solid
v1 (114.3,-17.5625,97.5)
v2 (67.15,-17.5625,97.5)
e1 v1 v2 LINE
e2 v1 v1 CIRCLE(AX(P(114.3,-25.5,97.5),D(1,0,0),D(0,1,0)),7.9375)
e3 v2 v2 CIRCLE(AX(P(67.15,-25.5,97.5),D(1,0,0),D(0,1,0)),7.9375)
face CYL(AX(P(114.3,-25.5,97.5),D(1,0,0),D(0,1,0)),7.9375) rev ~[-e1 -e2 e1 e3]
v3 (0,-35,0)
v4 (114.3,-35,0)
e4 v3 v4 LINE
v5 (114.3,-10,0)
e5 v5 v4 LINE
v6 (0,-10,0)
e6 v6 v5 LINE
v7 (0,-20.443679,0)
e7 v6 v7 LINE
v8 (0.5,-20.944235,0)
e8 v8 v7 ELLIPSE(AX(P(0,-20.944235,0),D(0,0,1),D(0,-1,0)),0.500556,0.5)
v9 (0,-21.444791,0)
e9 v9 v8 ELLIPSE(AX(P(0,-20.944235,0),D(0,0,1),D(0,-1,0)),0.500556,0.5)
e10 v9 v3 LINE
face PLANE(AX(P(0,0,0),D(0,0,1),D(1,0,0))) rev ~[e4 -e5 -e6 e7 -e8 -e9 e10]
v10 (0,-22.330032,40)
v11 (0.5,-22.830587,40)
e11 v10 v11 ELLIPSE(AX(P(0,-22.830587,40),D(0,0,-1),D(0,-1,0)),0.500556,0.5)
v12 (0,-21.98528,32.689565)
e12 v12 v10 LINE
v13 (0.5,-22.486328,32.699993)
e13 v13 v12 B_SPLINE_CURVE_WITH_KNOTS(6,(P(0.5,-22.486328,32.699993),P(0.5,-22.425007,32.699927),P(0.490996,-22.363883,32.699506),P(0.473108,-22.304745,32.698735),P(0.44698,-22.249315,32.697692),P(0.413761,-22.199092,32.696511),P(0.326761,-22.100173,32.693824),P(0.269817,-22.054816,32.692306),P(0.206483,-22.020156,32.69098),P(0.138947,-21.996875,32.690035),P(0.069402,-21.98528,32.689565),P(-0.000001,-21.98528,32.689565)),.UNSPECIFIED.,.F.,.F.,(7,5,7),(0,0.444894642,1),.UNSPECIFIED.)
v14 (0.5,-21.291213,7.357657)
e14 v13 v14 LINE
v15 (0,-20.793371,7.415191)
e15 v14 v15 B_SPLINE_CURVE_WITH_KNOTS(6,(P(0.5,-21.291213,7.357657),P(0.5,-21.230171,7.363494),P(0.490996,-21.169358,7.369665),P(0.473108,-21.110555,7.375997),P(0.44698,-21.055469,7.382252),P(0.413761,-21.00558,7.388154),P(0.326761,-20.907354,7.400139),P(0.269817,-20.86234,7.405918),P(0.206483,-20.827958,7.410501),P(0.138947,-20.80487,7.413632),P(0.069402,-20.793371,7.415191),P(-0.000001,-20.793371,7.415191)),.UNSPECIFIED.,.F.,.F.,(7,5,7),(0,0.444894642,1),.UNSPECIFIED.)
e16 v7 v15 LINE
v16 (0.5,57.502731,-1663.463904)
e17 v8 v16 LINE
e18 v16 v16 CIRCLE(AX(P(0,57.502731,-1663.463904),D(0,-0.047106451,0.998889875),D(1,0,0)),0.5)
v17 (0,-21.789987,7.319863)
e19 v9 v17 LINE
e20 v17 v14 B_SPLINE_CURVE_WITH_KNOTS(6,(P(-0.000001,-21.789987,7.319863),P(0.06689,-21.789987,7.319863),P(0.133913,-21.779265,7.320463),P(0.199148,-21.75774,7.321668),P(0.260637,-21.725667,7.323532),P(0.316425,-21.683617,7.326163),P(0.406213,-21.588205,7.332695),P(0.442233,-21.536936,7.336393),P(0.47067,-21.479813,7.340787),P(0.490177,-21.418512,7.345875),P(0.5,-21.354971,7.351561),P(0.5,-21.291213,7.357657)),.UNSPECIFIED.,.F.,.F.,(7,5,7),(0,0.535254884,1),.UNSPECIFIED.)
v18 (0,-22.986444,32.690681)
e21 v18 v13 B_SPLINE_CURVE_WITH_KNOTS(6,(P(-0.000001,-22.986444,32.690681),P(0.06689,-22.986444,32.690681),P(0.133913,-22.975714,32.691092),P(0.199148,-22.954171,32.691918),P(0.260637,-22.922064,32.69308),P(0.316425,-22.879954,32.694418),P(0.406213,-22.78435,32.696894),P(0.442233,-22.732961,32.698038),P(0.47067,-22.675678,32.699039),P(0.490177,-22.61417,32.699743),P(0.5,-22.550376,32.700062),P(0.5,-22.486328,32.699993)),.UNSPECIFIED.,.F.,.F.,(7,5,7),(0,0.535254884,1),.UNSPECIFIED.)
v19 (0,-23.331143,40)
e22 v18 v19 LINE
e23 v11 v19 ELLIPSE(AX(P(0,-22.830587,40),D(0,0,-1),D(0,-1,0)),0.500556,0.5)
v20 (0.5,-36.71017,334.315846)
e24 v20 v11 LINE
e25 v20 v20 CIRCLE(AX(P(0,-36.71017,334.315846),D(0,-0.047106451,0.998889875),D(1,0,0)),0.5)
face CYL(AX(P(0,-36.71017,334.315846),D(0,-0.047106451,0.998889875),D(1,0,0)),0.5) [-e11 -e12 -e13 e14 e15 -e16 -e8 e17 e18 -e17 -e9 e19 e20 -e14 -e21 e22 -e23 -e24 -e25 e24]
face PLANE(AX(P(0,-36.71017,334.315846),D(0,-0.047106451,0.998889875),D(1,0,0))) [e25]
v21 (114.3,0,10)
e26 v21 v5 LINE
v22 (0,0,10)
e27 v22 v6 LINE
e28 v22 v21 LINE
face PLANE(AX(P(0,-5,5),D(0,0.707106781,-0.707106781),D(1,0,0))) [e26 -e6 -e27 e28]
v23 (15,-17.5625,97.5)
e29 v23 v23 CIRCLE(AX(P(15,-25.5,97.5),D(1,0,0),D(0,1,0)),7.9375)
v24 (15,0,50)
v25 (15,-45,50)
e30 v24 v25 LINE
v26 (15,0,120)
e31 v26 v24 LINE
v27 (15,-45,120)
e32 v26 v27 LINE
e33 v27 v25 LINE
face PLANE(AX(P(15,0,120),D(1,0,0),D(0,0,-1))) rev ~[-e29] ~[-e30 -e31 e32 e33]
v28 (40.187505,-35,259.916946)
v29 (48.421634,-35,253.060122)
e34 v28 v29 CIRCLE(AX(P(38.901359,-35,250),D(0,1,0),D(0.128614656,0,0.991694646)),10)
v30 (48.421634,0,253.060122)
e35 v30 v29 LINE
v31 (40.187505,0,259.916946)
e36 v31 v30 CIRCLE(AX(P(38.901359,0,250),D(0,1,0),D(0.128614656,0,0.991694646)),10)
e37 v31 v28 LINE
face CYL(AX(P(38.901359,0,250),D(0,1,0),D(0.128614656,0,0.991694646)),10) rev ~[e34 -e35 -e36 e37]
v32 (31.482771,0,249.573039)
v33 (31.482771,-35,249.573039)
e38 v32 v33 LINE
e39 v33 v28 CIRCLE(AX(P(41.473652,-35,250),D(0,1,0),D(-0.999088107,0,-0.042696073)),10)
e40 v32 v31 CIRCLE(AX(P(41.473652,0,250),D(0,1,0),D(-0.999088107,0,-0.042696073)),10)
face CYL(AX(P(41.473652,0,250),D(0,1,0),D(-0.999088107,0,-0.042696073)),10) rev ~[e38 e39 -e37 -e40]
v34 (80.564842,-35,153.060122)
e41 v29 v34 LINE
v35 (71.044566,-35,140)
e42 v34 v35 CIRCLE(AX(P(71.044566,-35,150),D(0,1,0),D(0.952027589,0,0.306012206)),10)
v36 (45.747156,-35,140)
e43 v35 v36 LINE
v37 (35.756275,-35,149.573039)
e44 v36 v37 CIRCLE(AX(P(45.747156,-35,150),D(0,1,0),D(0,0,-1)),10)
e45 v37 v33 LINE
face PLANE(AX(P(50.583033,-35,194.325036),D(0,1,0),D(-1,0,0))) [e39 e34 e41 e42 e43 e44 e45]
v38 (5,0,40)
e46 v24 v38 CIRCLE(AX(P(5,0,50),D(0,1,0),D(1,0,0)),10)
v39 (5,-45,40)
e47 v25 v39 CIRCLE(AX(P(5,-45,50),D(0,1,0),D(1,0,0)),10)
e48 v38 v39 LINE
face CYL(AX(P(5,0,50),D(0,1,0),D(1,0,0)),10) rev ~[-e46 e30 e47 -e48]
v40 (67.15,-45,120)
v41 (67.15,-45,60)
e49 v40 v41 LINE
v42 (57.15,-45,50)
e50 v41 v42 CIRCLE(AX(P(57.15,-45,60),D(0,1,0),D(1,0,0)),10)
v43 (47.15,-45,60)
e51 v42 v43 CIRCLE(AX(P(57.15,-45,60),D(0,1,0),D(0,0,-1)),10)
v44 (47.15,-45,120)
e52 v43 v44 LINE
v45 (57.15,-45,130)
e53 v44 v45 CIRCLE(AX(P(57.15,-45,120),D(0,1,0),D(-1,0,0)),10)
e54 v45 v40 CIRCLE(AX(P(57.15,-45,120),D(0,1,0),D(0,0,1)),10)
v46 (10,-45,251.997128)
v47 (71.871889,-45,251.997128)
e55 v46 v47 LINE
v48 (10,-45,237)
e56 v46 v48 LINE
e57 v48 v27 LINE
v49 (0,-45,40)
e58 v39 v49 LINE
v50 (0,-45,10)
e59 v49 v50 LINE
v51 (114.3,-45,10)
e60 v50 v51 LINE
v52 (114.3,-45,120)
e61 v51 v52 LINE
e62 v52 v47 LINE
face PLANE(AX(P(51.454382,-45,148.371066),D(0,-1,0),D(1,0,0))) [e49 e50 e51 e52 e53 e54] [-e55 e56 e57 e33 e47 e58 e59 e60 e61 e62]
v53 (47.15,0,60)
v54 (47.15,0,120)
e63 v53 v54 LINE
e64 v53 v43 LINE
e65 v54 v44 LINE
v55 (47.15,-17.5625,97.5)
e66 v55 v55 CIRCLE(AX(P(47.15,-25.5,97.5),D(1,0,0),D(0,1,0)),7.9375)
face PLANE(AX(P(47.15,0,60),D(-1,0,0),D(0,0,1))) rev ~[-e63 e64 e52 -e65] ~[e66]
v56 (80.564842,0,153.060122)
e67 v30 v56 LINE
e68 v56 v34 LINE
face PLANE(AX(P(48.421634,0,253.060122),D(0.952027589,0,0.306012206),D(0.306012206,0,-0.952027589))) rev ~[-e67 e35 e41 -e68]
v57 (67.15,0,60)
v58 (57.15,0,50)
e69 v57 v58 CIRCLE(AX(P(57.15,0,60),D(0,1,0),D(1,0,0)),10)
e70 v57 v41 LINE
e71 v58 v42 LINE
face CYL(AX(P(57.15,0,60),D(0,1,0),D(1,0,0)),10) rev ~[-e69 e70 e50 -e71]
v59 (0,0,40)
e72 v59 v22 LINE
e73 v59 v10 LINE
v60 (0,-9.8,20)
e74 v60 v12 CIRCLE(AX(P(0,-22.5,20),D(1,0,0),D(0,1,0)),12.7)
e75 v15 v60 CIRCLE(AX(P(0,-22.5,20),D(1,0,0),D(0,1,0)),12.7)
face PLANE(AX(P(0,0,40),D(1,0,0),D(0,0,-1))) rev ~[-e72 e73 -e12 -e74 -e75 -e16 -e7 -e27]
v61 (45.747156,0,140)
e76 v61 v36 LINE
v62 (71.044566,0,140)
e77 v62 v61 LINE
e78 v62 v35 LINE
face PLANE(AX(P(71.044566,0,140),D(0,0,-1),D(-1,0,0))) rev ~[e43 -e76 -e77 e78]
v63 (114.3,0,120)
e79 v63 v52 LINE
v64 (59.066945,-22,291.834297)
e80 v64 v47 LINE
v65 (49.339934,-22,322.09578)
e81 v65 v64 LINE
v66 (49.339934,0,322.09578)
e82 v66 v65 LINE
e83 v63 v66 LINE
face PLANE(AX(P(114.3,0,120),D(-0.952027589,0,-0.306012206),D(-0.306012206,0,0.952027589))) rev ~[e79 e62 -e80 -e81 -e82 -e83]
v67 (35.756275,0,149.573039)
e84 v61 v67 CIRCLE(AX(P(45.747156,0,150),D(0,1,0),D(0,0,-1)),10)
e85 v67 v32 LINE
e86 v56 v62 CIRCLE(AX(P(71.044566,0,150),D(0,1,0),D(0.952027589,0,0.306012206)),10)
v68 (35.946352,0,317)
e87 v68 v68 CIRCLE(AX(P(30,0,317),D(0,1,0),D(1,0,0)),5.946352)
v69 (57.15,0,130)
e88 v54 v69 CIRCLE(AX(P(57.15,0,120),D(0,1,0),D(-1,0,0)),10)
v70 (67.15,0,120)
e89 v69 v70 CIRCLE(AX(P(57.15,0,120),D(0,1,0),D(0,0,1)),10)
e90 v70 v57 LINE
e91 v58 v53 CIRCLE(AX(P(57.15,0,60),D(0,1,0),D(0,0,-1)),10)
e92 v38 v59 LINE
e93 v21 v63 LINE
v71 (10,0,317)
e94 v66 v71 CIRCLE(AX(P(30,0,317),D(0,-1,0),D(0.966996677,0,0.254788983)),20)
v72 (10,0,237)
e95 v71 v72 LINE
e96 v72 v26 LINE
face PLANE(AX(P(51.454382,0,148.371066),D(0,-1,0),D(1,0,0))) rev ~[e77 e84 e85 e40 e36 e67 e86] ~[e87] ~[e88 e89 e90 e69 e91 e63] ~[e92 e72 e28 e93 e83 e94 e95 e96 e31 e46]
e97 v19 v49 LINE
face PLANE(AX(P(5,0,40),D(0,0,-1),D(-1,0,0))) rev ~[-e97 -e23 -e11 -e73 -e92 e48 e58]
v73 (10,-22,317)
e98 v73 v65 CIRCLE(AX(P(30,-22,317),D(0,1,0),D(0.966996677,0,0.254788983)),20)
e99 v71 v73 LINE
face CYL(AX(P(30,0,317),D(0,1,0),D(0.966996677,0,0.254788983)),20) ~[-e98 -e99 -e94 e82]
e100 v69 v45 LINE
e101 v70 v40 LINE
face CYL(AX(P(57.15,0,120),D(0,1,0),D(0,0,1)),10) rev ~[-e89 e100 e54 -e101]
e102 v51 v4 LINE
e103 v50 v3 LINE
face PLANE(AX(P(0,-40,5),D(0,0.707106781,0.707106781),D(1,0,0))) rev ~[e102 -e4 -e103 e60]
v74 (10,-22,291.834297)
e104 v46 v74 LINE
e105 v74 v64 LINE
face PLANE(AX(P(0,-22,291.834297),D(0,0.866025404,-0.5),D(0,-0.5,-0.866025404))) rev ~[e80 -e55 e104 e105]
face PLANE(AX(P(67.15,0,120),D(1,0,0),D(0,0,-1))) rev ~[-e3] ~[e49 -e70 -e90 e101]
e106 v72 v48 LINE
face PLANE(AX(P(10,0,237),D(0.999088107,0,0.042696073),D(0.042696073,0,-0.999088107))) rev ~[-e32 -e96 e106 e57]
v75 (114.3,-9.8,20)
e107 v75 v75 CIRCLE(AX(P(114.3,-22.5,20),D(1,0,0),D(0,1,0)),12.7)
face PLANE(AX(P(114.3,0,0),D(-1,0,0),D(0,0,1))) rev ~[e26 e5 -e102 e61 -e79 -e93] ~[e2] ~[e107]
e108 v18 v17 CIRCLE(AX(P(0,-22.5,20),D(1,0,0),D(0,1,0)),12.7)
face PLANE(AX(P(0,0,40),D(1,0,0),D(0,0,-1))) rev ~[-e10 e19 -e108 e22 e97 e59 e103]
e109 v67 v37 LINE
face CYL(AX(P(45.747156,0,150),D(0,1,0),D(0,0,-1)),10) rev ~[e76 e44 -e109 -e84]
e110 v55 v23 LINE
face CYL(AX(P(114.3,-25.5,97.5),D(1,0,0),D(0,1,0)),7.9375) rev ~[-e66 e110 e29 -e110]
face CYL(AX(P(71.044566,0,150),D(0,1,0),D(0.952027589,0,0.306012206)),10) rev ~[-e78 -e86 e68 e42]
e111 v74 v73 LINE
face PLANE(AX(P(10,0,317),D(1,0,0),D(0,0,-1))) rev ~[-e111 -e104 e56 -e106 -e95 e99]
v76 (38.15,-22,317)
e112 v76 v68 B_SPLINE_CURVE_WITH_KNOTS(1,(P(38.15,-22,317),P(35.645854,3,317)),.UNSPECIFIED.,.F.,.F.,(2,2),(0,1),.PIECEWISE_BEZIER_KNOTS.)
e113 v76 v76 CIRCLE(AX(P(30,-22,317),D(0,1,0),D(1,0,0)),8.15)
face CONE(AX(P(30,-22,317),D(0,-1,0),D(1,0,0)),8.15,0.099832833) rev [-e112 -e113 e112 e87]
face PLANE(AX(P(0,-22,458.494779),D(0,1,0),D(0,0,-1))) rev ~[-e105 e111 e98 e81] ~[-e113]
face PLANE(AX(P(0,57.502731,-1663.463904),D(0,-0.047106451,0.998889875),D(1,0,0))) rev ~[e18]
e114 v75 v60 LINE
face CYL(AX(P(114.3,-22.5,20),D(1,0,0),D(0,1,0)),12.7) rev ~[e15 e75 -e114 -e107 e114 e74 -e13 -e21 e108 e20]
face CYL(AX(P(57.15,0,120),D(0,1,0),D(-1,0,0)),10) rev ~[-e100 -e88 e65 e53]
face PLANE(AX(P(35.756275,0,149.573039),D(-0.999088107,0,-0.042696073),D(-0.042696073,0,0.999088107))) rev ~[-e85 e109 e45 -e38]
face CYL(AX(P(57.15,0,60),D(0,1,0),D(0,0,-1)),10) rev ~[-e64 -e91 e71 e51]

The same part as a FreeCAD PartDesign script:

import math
import FreeCAD as App
import Part
import Sketcher
from FreeCAD import Vector
Q = App.Units.Quantity


def edges_at(feature, points):
    """Names of the edges that pass closest to the given points."""
    edges = feature.Shape.Edges
    near = lambda p: min(range(len(edges)), key=lambda i: edges[i].distToShape(Part.Vertex(*p))[0])
    return sorted({f"Edge{near(p) + 1}" for p in points})


def add_polygon(sketch, points):
    """Adds a closed chain of lines whose ends are joined by coincident constraints."""
    first, n = sketch.GeometryCount, len(points)
    for a, b in zip(points, points[1:] + points[:1]):
        sketch.addGeometry(Part.LineSegment(App.Vector(*a, 0), App.Vector(*b, 0)), False)
    for i in range(n):
        sketch.addConstraint(Sketcher.Constraint("Coincident", first + i, 2, first + (i + 1) % n, 1))

doc = App.newDocument("Part")
body = doc.addObject("PartDesign::Body", "Body")

# Sketch on XZ plane
sketch1 = doc.addObject("Sketcher::SketchObject", "Sketch")
body.addObject(sketch1)
sketch1.AttachmentSupport = (doc.XZ_Plane, [""])
sketch1.MapMode = "FlatFace"
sketch1.addGeometry(Part.LineSegment(Vector(0, 40, 0), Vector(0, 0, 0)), False)
sketch1.addGeometry(Part.LineSegment(Vector(0, 0, 0), Vector(114.3, 0, 0)), False)
sketch1.addGeometry(Part.LineSegment(Vector(114.3, 0, 0), Vector(114.3, 120, 0)), False)
sketch1.addGeometry(Part.LineSegment(Vector(114.3, 120, 0), Vector(49.339934, 322.09578, 0)), False)
sketch1.addGeometry(Part.ArcOfCircle(Part.Circle(Vector(30, 317, 0), Vector(0, 0, 1), 20), math.radians(14.761082), math.radians(180)), False)
sketch1.addGeometry(Part.LineSegment(Vector(10, 317, 0), Vector(10, 237, 0)), False)
sketch1.addGeometry(Part.LineSegment(Vector(10, 237, 0), Vector(15, 120, 0)), False)
sketch1.addGeometry(Part.LineSegment(Vector(15, 120, 0), Vector(15, 50, 0)), False)
sketch1.addGeometry(Part.ArcOfCircle(Part.Circle(Vector(5, 50, 0), Vector(0, 0, 1), 10), math.radians(-90), math.radians(0)), False)
sketch1.addGeometry(Part.LineSegment(Vector(5, 40, 0), Vector(0, 40, 0)), False)
sketch1.addGeometry(Part.ArcOfCircle(Part.Circle(Vector(57.15, 120, 0), Vector(0, 0, 1), 10), math.radians(90), math.radians(180)), False)
sketch1.addGeometry(Part.ArcOfCircle(Part.Circle(Vector(57.15, 120, 0), Vector(0, 0, 1), 10), math.radians(0), math.radians(90)), False)
sketch1.addGeometry(Part.LineSegment(Vector(67.15, 120, 0), Vector(67.15, 60, 0)), False)
sketch1.addGeometry(Part.ArcOfCircle(Part.Circle(Vector(57.15, 60, 0), Vector(0, 0, 1), 10), math.radians(-90), math.radians(0)), False)
sketch1.addGeometry(Part.ArcOfCircle(Part.Circle(Vector(57.15, 60, 0), Vector(0, 0, 1), 10), math.radians(180), math.radians(270)), False)
sketch1.addGeometry(Part.LineSegment(Vector(47.15, 60, 0), Vector(47.15, 120, 0)), False)
sketch1.addGeometry(Part.Circle(Vector(30, 317, 0), Vector(0, 0, 1), 2.5), False)
sketch1.addConstraint(Sketcher.Constraint("Coincident", 0, 2, 1, 1))
sketch1.addConstraint(Sketcher.Constraint("Coincident", 1, 2, 2, 1))
sketch1.addConstraint(Sketcher.Constraint("Coincident", 2, 2, 3, 1))
sketch1.addConstraint(Sketcher.Constraint("Coincident", 3, 2, 4, 1))
sketch1.addConstraint(Sketcher.Constraint("Tangent", 4, 2, 5, 1))
sketch1.addConstraint(Sketcher.Constraint("Coincident", 5, 2, 6, 1))
sketch1.addConstraint(Sketcher.Constraint("Coincident", 6, 2, 7, 1))
sketch1.addConstraint(Sketcher.Constraint("Tangent", 7, 2, 8, 2))
sketch1.addConstraint(Sketcher.Constraint("Tangent", 8, 1, 9, 1))
sketch1.addConstraint(Sketcher.Constraint("Coincident", 9, 2, 0, 1))
sketch1.addConstraint(Sketcher.Constraint("Tangent", 10, 1, 11, 2))
sketch1.addConstraint(Sketcher.Constraint("Tangent", 11, 1, 12, 1))
sketch1.addConstraint(Sketcher.Constraint("Tangent", 12, 2, 13, 2))
sketch1.addConstraint(Sketcher.Constraint("Tangent", 13, 1, 14, 2))
sketch1.addConstraint(Sketcher.Constraint("Tangent", 14, 1, 15, 1))
sketch1.addConstraint(Sketcher.Constraint("Tangent", 15, 2, 10, 2))
sketch1.addConstraint(Sketcher.Constraint("Vertical", 0))
sketch1.addConstraint(Sketcher.Constraint("Horizontal", 1))
sketch1.addConstraint(Sketcher.Constraint("Vertical", 2))
sketch1.addConstraint(Sketcher.Constraint("Vertical", 5))
sketch1.addConstraint(Sketcher.Constraint("Vertical", 7))
sketch1.addConstraint(Sketcher.Constraint("Horizontal", 9))
sketch1.addConstraint(Sketcher.Constraint("Vertical", 12))
sketch1.addConstraint(Sketcher.Constraint("Vertical", 15))
sketch1.addConstraint(Sketcher.Constraint("Coincident", 0, 2, -1, 1))
sketch1.addConstraint(Sketcher.Constraint("Coincident", 16, 3, 4, 3))
sketch1.addConstraint(Sketcher.Constraint("Equal", 8, 10))
sketch1.addConstraint(Sketcher.Constraint("Equal", 10, 11))
sketch1.addConstraint(Sketcher.Constraint("Equal", 11, 13))
sketch1.addConstraint(Sketcher.Constraint("Horizontal", 11, 3, 2, 2))
sketch1.addConstraint(Sketcher.Constraint("Horizontal", 2, 2, 6, 2))
sketch1.addConstraint(Sketcher.Constraint("Horizontal", 7, 2, 13, 1))
sketch1.addConstraint(Sketcher.Constraint("Vertical", 14, 3, 10, 1))
sketch1.addConstraint(Sketcher.Constraint("Vertical", 10, 1, 13, 1))
sketch1.addConstraint(Sketcher.Constraint("Diameter", 16, 5.0))
sketch1.addConstraint(Sketcher.Constraint("Radius", 4, 20.0))
sketch1.addConstraint(Sketcher.Constraint("Radius", 8, 10.0))
sketch1.addConstraint(Sketcher.Constraint("DistanceX", 9, 2, 9, 1, 5.0))
sketch1.addConstraint(Sketcher.Constraint("DistanceY", 0, 2, 0, 1, 40.0))
sketch1.addConstraint(Sketcher.Constraint("DistanceY", 2, 1, 2, 2, 120.0))
sketch1.addConstraint(Sketcher.Constraint("DistanceY", 5, 2, 5, 1, 80.0))
sketch1.addConstraint(Sketcher.Constraint("DistanceX", 1, 1, 1, 2, 114.3))
sketch1.addConstraint(Sketcher.Constraint("DistanceX", -1, 1, 4, 3, 30.0))
sketch1.addConstraint(Sketcher.Constraint("DistanceY", -1, 1, 4, 3, 317.0))
sketch1.addConstraint(Sketcher.Constraint("DistanceX", -1, 1, 10, 3, 57.15))
sketch1.addConstraint(Sketcher.Constraint("Distance", 3, 212.279331))
pad1 = doc.addObject("PartDesign::Pad", "Pad")
body.addObject(pad1)
pad1.Profile = sketch1
pad1.Length = 45

# Sketch on YZ plane
sketch2 = doc.addObject("Sketcher::SketchObject", "Sketch001")
body.addObject(sketch2)
sketch2.AttachmentSupport = (doc.YZ_Plane, [""])
sketch2.MapMode = "FlatFace"
sketch2.AttachmentOffset = App.Placement(Vector(0, 0, 114.3), App.Rotation())
sketch2.addGeometry(Part.Circle(Vector(-25.5, 97.5, 0), Vector(0, 0, 1), 7.9375), False)
sketch2.addGeometry(Part.Circle(Vector(-22.5, 20, 0), Vector(0, 0, 1), 12.7), False)
sketch2.addConstraint(Sketcher.Constraint("Diameter", 1, 25.4))
sketch2.addConstraint(Sketcher.Constraint("Diameter", 0, 15.875))
sketch2.addConstraint(Sketcher.Constraint("DistanceY", -1, 1, 1, 3, 20.0))
sketch2.addConstraint(Sketcher.Constraint("DistanceX", 0, 3, 1, 3, 3.0))
sketch2.addConstraint(Sketcher.Constraint("DistanceX", 0, 3, -1, 1, 25.5))
sketch2.addConstraint(Sketcher.Constraint("DistanceY", -1, 1, 0, 3, 97.5))
pocket1 = doc.addObject("PartDesign::Pocket", "Pocket")
body.addObject(pocket1)
pocket1.Profile = sketch2
pocket1.Type = "ThroughAll"

# Sketch on XZ plane
sketch3 = doc.addObject("Sketcher::SketchObject", "Sketch002")
body.addObject(sketch3)
sketch3.AttachmentSupport = (doc.XZ_Plane, [""])
sketch3.MapMode = "FlatFace"
sketch3.addGeometry(Part.LineSegment(Vector(48.421634, 253.060122, 0), Vector(80.564842, 153.060122, 0)), False)
sketch3.addGeometry(Part.ArcOfCircle(Part.Circle(Vector(71.044566, 150, 0), Vector(0, 0, 1), 10), math.radians(-90), math.radians(17.819071)), False)
sketch3.addGeometry(Part.LineSegment(Vector(71.044566, 140, 0), Vector(45.747156, 140, 0)), False)
sketch3.addGeometry(Part.ArcOfCircle(Part.Circle(Vector(45.747156, 150, 0), Vector(0, 0, 1), 10), math.radians(-177.552951), math.radians(-90)), False)
sketch3.addGeometry(Part.LineSegment(Vector(35.756275, 149.573039, 0), Vector(31.482771, 249.573039, 0)), False)
sketch3.addGeometry(Part.ArcOfCircle(Part.Circle(Vector(41.473652, 250, 0), Vector(0, 0, 1), 10), math.radians(97.389546), math.radians(182.447049)), False)
sketch3.addGeometry(Part.ArcOfCircle(Part.Circle(Vector(38.901359, 250, 0), Vector(0, 0, 1), 10), math.radians(17.819071), math.radians(82.610454)), False)
sketch3.addConstraint(Sketcher.Constraint("Tangent", 0, 2, 1, 2))
sketch3.addConstraint(Sketcher.Constraint("Tangent", 1, 1, 2, 1))
sketch3.addConstraint(Sketcher.Constraint("Tangent", 2, 2, 3, 2))
sketch3.addConstraint(Sketcher.Constraint("Tangent", 3, 1, 4, 1))
sketch3.addConstraint(Sketcher.Constraint("Tangent", 4, 2, 5, 2))
sketch3.addConstraint(Sketcher.Constraint("Coincident", 5, 1, 6, 2))
sketch3.addConstraint(Sketcher.Constraint("Tangent", 6, 1, 0, 1))
sketch3.addConstraint(Sketcher.Constraint("Horizontal", 2))
sketch3.addConstraint(Sketcher.Constraint("Equal", 1, 3))
sketch3.addConstraint(Sketcher.Constraint("Equal", 3, 5))
sketch3.addConstraint(Sketcher.Constraint("Equal", 5, 6))
sketch3.addConstraint(Sketcher.Constraint("Horizontal", 5, 3, 6, 3))
sketch3.addConstraint(Sketcher.Constraint("Radius", 1, 10.0))
sketch3.addConstraint(Sketcher.Constraint("DistanceY", -1, 1, 1, 3, 150.0))
sketch3.addConstraint(Sketcher.Constraint("DistanceY", -1, 1, 5, 3, 250.0))
sketch3.addConstraint(Sketcher.Constraint("DistanceX", 2, 2, 2, 1, 25.29741))
sketch3.addConstraint(Sketcher.Constraint("DistanceX", -1, 1, 5, 3, 41.473652))
sketch3.addConstraint(Sketcher.Constraint("DistanceX", -1, 1, 6, 3, 38.901359))
sketch3.addConstraint(Sketcher.Constraint("DistanceY", -1, 1, 3, 1, 149.573039))
pocket2 = doc.addObject("PartDesign::Pocket", "Pocket001")
body.addObject(pocket2)
pocket2.Profile = sketch3
pocket2.Length = 35
pocket2.Reversed = True

# Sketch on YZ plane
sketch4 = doc.addObject("Sketcher::SketchObject", "Sketch003")
body.addObject(sketch4)
sketch4.AttachmentSupport = (doc.YZ_Plane, [""])
sketch4.MapMode = "FlatFace"
add_polygon(sketch4, [(-75.724735, 458.494779), (-22, 458.494779), (-22, 291.834297), (-75.724735, 198.780326)])  # lines 0-3
sketch4.addConstraint(Sketcher.Constraint("Horizontal", 0))
sketch4.addConstraint(Sketcher.Constraint("Vertical", 1))
sketch4.addConstraint(Sketcher.Constraint("Vertical", 3))
sketch4.addConstraint(Sketcher.Constraint("Angle", 2, Q("-120 deg")))
sketch4.addConstraint(Sketcher.Constraint("DistanceX", 0, 2, -1, 1, 22.0))
sketch4.addConstraint(Sketcher.Constraint("DistanceY", 1, 2, 1, 1, 166.660482))
sketch4.addConstraint(Sketcher.Constraint("Distance", 2, 107.44947))
sketch4.addConstraint(Sketcher.Constraint("DistanceY", -1, 1, 0, 2, 458.494779))
pocket3 = doc.addObject("PartDesign::Pocket", "Pocket002")
body.addObject(pocket3)
pocket3.Profile = sketch4
pocket3.Type = "ThroughAll"
pocket3.Reversed = True
doc.recompute()

chamfer = doc.addObject("PartDesign::Chamfer", "Chamfer")
body.addObject(chamfer)
chamfer.Base = (pocket3, edges_at(pocket3, [(57.15, 0, 0), (57.15, -45, 0)]))
chamfer.Size = 10

# Sketch on XZ plane
sketch5 = doc.addObject("Sketcher::SketchObject", "Sketch004")
body.addObject(sketch5)
sketch5.AttachmentSupport = (doc.XZ_Plane, [""])
sketch5.MapMode = "FlatFace"
sketch5.AttachmentOffset = App.Placement(Vector(0, 0, 22), App.Rotation())
sketch5.addGeometry(Part.Circle(Vector(30, 317, 0), Vector(0, 0, 1), 8.15), False)
sketch5.addConstraint(Sketcher.Constraint("Diameter", 0, 16.3))
sketch5.addConstraint(Sketcher.Constraint("DistanceX", -1, 1, 0, 3, 30.0))
sketch5.addConstraint(Sketcher.Constraint("DistanceY", -1, 1, 0, 3, 317.0))
pocket4 = doc.addObject("PartDesign::Pocket", "Pocket003")
body.addObject(pocket4)
pocket4.Profile = sketch5
pocket4.Length = 25
pocket4.TaperAngle = -5.72

# Sketch on an angled plane
sketch6 = doc.addObject("Sketcher::SketchObject", "Sketch005")
body.addObject(sketch6)
sketch6.Placement = App.Placement(Vector(0, -15.812411, 335.30136), App.Rotation(Vector(1, 0, 0), Vector(0, 0.998889875, 0.047106451), Vector(0, -0.047106451, 0.998889875), "ZXY"))
sketch6.addGeometry(Part.Circle(Vector(0, -20.920984, 0), Vector(0, 0, 1), 0.5), False)
sketch6.addConstraint(Sketcher.Constraint("PointOnObject", 0, 3, -2))
sketch6.addConstraint(Sketcher.Constraint("Diameter", 0, 1.0))
sketch6.addConstraint(Sketcher.Constraint("DistanceY", 0, 3, -1, 1, 20.920984))
pad2 = doc.addObject("PartDesign::Pad", "Pad001")
body.addObject(pad2)
pad2.Profile = sketch6
pad2.Length = 2000
pad2.Reversed = True

doc.recompute()
